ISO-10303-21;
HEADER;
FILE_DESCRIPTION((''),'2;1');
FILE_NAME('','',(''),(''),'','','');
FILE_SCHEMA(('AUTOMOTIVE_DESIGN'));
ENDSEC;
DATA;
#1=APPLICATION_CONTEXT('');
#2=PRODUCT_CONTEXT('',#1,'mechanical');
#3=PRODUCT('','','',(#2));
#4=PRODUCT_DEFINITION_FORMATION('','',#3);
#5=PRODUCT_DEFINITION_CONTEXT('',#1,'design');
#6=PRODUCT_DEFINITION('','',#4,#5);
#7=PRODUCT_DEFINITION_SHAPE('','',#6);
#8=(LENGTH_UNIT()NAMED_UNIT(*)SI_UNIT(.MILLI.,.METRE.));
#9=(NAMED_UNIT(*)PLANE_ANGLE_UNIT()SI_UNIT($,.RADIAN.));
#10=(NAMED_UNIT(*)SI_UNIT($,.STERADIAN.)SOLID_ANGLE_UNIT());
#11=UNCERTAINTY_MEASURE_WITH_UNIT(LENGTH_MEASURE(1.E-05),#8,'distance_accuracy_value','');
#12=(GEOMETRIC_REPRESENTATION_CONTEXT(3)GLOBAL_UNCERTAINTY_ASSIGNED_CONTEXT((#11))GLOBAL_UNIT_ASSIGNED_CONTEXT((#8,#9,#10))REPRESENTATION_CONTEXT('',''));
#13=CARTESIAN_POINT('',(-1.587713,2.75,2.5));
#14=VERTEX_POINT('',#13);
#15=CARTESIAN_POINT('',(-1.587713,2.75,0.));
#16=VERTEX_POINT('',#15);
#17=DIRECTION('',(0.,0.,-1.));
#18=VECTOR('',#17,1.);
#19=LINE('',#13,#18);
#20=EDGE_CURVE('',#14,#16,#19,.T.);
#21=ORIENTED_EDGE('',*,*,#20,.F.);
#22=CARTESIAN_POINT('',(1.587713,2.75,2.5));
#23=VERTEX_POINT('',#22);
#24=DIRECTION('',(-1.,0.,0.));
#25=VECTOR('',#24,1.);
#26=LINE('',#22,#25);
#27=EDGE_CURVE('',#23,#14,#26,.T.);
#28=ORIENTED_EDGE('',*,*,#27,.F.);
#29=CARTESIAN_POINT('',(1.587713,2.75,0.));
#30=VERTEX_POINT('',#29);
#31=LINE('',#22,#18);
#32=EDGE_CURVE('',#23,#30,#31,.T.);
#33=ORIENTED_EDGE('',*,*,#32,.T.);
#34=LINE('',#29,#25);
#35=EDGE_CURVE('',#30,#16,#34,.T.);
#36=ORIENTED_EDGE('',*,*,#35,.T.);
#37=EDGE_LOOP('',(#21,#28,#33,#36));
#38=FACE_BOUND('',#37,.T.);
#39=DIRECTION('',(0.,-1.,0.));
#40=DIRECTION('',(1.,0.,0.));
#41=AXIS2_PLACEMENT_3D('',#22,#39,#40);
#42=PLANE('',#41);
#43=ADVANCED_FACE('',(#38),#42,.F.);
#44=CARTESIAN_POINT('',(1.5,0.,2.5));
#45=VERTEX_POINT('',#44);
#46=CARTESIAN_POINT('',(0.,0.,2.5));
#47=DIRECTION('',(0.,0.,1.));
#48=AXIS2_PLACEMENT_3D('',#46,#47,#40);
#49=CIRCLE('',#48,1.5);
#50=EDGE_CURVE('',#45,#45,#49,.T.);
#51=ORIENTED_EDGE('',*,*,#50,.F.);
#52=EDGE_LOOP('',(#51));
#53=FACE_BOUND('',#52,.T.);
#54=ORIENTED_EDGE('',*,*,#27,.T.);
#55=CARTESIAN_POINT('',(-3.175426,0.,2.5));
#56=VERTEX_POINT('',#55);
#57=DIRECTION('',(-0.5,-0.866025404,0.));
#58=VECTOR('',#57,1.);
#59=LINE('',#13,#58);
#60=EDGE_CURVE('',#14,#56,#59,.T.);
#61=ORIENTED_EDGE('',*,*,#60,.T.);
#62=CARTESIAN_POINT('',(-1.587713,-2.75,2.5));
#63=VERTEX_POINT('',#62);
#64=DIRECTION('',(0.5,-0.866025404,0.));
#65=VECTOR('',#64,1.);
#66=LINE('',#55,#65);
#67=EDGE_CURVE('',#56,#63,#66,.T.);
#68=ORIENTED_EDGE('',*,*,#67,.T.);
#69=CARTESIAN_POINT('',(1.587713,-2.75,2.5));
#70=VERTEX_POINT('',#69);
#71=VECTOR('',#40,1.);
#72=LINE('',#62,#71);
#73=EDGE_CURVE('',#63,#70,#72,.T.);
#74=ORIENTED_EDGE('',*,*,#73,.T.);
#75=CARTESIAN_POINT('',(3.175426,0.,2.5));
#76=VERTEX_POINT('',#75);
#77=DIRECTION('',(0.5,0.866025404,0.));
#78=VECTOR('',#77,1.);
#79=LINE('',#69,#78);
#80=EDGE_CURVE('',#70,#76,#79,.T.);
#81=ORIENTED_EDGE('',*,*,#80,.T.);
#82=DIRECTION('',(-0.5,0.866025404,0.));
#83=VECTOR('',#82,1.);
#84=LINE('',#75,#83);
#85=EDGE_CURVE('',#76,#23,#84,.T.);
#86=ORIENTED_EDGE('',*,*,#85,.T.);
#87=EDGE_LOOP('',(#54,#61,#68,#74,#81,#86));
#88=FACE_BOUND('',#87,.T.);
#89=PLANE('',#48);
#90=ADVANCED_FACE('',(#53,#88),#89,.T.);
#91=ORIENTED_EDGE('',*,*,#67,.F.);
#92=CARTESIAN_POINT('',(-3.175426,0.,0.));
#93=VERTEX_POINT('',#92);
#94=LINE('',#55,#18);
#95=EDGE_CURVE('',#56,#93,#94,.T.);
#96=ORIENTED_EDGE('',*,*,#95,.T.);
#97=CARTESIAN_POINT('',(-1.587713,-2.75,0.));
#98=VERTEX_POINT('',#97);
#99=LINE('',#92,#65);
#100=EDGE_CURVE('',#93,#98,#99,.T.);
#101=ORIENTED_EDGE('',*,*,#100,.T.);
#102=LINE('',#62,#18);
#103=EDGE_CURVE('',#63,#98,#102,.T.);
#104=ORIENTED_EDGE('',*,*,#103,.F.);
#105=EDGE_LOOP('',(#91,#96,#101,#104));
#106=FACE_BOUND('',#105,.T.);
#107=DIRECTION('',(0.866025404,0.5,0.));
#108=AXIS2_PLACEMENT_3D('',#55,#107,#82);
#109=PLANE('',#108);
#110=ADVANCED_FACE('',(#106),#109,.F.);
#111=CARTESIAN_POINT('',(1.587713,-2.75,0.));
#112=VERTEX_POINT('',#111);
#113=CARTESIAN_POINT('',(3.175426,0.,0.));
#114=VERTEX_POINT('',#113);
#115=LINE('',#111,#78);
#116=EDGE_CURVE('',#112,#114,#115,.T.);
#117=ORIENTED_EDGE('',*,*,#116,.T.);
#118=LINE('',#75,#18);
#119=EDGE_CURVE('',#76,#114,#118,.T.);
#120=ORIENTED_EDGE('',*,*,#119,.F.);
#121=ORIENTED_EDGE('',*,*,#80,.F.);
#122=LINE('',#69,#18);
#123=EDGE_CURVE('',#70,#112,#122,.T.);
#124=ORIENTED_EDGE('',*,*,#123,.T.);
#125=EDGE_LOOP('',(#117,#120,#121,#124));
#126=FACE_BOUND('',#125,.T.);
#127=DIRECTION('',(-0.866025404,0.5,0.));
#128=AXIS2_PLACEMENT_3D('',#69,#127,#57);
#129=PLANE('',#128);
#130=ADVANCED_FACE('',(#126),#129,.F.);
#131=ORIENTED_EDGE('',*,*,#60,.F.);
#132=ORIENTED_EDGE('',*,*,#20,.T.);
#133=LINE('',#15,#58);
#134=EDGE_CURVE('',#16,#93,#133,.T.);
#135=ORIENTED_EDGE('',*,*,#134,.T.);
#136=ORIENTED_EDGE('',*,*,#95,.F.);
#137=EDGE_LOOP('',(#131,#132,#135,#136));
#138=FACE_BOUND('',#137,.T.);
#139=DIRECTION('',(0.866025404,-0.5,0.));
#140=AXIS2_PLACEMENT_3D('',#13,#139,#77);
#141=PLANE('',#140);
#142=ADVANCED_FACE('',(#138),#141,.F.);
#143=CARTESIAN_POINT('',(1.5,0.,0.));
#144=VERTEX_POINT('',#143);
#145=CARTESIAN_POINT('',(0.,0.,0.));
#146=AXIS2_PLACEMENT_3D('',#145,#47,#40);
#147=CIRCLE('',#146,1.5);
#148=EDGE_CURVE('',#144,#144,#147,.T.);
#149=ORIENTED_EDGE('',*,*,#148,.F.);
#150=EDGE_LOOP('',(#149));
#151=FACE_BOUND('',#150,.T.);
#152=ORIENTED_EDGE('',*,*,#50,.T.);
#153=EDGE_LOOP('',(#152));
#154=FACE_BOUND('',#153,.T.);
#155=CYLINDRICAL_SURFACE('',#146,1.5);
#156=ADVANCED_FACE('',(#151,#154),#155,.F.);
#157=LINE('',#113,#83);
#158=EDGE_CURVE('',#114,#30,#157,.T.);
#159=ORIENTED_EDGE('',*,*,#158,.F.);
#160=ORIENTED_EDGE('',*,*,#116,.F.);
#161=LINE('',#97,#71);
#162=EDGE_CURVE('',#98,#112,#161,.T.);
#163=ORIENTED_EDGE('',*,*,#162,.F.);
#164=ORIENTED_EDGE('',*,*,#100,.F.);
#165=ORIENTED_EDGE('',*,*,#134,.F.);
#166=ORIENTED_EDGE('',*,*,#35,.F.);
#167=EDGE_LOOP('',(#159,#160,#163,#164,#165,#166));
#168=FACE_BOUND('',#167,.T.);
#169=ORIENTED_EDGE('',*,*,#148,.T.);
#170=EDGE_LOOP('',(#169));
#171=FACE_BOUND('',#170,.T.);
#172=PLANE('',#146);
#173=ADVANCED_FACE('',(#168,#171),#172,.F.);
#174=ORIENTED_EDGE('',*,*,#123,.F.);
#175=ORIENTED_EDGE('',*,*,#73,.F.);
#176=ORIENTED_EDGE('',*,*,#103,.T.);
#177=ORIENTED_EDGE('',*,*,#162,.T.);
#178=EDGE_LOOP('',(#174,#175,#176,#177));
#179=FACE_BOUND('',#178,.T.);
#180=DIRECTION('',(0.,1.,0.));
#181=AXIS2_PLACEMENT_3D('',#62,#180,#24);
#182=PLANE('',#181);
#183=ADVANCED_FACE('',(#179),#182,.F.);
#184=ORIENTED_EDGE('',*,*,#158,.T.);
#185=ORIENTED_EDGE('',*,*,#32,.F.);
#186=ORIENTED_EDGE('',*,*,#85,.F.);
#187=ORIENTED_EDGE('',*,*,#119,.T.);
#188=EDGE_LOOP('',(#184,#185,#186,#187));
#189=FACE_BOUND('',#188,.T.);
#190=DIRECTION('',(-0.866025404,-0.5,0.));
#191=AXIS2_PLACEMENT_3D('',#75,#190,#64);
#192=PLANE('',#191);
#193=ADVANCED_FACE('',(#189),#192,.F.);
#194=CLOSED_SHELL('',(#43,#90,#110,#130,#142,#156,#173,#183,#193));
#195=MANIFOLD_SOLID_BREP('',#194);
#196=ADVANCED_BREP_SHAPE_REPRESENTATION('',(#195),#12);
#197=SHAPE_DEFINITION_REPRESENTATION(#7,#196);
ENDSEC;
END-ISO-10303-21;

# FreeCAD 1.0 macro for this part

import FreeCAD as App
import Part
import Sketcher

V = App.Vector
Q = App.Units.Quantity


def add_polygon(sketch, points):
    """Adds a closed chain of lines whose ends are joined by coincident constraints."""
    first, n = sketch.GeometryCount, len(points)
    for a, b in zip(points, points[1:] + points[:1]):
        sketch.addGeometry(Part.LineSegment(App.Vector(*a, 0), App.Vector(*b, 0)), False)
    for i in range(n):
        sketch.addConstraint(Sketcher.Constraint("Coincident", first + i, 2, first + (i + 1) % n, 1))

doc = App.newDocument("Part")
params = doc.addObject("Spreadsheet::Sheet", "Params")
for row, (alias, value) in enumerate([
    ("pad1_length", "2.5 mm"),
    ("sketch2_diameter", "3 mm"),
], start=1):
    params.set(f"A{row}", alias)
    params.set(f"B{row}", "=" + value)
    params.setAlias(f"B{row}", alias)

body = doc.addObject("PartDesign::Body", "Body")

# Sketch on XY plane
sketch1 = body.newObject("Sketcher::SketchObject", "Sketch")
sketch1.AttachmentSupport = (doc.getObject("XY_Plane"), [""])
sketch1.MapMode = "FlatFace"
add_polygon(sketch1, [(1.6, 2.8), (-1.6, 2.8), (-3.2, 0), (-1.6, -2.8), (1.6, -2.8), (3.2, 0)])  # lines 0-5
sketch1.addConstraint([
    Sketcher.Constraint("Horizontal", 0),
    Sketcher.Constraint("Horizontal", 3),
    Sketcher.Constraint("Symmetric", 0, 2, 3, 2, -1, 1),
    Sketcher.Constraint("Symmetric", 1, 2, 4, 2, -1, 1),
    Sketcher.Constraint("PointOnObject", 1, 2, -1),
    Sketcher.Constraint("Parallel", 2, 5),
    Sketcher.Constraint("Vertical", 0, 2, 2, 2),
    Sketcher.Constraint("Angle", 1, Q("-120 deg")),
    Sketcher.Constraint("DistanceY", 2, 2, 0, 2, Q("5.5 mm")),
    Sketcher.Constraint("DistanceX", 0, 2, 0, 1, Q("3.175426 mm")),
])
pad1 = body.newObject("PartDesign::Pad", "Pad")
pad1.Profile = sketch1
pad1.setExpression("Length", "Params.pad1_length")

# Sketch on XY plane
sketch2 = body.newObject("Sketcher::SketchObject", "Sketch001")
sketch2.AttachmentSupport = (doc.getObject("XY_Plane"), [""])
sketch2.MapMode = "FlatFace"
sketch2.AttachmentOffset = App.Placement(V(0, 0, 2.5), App.Rotation())
sketch2.addGeometry(Part.Circle(V(0, 0, 0), V(0, 0, 1), 1.5), False)
sketch2.addConstraint([
    Sketcher.Constraint("Coincident", 0, 3, -1, 1),
    Sketcher.Constraint("Diameter", 0, Q("3 mm")),
])
sketch2.setExpression("Constraints[1]", "Params.sketch2_diameter")
pocket1 = body.newObject("PartDesign::Pocket", "Pocket")
pocket1.Profile = sketch2
pocket1.Type = "ThroughAll"

doc.recompute()
